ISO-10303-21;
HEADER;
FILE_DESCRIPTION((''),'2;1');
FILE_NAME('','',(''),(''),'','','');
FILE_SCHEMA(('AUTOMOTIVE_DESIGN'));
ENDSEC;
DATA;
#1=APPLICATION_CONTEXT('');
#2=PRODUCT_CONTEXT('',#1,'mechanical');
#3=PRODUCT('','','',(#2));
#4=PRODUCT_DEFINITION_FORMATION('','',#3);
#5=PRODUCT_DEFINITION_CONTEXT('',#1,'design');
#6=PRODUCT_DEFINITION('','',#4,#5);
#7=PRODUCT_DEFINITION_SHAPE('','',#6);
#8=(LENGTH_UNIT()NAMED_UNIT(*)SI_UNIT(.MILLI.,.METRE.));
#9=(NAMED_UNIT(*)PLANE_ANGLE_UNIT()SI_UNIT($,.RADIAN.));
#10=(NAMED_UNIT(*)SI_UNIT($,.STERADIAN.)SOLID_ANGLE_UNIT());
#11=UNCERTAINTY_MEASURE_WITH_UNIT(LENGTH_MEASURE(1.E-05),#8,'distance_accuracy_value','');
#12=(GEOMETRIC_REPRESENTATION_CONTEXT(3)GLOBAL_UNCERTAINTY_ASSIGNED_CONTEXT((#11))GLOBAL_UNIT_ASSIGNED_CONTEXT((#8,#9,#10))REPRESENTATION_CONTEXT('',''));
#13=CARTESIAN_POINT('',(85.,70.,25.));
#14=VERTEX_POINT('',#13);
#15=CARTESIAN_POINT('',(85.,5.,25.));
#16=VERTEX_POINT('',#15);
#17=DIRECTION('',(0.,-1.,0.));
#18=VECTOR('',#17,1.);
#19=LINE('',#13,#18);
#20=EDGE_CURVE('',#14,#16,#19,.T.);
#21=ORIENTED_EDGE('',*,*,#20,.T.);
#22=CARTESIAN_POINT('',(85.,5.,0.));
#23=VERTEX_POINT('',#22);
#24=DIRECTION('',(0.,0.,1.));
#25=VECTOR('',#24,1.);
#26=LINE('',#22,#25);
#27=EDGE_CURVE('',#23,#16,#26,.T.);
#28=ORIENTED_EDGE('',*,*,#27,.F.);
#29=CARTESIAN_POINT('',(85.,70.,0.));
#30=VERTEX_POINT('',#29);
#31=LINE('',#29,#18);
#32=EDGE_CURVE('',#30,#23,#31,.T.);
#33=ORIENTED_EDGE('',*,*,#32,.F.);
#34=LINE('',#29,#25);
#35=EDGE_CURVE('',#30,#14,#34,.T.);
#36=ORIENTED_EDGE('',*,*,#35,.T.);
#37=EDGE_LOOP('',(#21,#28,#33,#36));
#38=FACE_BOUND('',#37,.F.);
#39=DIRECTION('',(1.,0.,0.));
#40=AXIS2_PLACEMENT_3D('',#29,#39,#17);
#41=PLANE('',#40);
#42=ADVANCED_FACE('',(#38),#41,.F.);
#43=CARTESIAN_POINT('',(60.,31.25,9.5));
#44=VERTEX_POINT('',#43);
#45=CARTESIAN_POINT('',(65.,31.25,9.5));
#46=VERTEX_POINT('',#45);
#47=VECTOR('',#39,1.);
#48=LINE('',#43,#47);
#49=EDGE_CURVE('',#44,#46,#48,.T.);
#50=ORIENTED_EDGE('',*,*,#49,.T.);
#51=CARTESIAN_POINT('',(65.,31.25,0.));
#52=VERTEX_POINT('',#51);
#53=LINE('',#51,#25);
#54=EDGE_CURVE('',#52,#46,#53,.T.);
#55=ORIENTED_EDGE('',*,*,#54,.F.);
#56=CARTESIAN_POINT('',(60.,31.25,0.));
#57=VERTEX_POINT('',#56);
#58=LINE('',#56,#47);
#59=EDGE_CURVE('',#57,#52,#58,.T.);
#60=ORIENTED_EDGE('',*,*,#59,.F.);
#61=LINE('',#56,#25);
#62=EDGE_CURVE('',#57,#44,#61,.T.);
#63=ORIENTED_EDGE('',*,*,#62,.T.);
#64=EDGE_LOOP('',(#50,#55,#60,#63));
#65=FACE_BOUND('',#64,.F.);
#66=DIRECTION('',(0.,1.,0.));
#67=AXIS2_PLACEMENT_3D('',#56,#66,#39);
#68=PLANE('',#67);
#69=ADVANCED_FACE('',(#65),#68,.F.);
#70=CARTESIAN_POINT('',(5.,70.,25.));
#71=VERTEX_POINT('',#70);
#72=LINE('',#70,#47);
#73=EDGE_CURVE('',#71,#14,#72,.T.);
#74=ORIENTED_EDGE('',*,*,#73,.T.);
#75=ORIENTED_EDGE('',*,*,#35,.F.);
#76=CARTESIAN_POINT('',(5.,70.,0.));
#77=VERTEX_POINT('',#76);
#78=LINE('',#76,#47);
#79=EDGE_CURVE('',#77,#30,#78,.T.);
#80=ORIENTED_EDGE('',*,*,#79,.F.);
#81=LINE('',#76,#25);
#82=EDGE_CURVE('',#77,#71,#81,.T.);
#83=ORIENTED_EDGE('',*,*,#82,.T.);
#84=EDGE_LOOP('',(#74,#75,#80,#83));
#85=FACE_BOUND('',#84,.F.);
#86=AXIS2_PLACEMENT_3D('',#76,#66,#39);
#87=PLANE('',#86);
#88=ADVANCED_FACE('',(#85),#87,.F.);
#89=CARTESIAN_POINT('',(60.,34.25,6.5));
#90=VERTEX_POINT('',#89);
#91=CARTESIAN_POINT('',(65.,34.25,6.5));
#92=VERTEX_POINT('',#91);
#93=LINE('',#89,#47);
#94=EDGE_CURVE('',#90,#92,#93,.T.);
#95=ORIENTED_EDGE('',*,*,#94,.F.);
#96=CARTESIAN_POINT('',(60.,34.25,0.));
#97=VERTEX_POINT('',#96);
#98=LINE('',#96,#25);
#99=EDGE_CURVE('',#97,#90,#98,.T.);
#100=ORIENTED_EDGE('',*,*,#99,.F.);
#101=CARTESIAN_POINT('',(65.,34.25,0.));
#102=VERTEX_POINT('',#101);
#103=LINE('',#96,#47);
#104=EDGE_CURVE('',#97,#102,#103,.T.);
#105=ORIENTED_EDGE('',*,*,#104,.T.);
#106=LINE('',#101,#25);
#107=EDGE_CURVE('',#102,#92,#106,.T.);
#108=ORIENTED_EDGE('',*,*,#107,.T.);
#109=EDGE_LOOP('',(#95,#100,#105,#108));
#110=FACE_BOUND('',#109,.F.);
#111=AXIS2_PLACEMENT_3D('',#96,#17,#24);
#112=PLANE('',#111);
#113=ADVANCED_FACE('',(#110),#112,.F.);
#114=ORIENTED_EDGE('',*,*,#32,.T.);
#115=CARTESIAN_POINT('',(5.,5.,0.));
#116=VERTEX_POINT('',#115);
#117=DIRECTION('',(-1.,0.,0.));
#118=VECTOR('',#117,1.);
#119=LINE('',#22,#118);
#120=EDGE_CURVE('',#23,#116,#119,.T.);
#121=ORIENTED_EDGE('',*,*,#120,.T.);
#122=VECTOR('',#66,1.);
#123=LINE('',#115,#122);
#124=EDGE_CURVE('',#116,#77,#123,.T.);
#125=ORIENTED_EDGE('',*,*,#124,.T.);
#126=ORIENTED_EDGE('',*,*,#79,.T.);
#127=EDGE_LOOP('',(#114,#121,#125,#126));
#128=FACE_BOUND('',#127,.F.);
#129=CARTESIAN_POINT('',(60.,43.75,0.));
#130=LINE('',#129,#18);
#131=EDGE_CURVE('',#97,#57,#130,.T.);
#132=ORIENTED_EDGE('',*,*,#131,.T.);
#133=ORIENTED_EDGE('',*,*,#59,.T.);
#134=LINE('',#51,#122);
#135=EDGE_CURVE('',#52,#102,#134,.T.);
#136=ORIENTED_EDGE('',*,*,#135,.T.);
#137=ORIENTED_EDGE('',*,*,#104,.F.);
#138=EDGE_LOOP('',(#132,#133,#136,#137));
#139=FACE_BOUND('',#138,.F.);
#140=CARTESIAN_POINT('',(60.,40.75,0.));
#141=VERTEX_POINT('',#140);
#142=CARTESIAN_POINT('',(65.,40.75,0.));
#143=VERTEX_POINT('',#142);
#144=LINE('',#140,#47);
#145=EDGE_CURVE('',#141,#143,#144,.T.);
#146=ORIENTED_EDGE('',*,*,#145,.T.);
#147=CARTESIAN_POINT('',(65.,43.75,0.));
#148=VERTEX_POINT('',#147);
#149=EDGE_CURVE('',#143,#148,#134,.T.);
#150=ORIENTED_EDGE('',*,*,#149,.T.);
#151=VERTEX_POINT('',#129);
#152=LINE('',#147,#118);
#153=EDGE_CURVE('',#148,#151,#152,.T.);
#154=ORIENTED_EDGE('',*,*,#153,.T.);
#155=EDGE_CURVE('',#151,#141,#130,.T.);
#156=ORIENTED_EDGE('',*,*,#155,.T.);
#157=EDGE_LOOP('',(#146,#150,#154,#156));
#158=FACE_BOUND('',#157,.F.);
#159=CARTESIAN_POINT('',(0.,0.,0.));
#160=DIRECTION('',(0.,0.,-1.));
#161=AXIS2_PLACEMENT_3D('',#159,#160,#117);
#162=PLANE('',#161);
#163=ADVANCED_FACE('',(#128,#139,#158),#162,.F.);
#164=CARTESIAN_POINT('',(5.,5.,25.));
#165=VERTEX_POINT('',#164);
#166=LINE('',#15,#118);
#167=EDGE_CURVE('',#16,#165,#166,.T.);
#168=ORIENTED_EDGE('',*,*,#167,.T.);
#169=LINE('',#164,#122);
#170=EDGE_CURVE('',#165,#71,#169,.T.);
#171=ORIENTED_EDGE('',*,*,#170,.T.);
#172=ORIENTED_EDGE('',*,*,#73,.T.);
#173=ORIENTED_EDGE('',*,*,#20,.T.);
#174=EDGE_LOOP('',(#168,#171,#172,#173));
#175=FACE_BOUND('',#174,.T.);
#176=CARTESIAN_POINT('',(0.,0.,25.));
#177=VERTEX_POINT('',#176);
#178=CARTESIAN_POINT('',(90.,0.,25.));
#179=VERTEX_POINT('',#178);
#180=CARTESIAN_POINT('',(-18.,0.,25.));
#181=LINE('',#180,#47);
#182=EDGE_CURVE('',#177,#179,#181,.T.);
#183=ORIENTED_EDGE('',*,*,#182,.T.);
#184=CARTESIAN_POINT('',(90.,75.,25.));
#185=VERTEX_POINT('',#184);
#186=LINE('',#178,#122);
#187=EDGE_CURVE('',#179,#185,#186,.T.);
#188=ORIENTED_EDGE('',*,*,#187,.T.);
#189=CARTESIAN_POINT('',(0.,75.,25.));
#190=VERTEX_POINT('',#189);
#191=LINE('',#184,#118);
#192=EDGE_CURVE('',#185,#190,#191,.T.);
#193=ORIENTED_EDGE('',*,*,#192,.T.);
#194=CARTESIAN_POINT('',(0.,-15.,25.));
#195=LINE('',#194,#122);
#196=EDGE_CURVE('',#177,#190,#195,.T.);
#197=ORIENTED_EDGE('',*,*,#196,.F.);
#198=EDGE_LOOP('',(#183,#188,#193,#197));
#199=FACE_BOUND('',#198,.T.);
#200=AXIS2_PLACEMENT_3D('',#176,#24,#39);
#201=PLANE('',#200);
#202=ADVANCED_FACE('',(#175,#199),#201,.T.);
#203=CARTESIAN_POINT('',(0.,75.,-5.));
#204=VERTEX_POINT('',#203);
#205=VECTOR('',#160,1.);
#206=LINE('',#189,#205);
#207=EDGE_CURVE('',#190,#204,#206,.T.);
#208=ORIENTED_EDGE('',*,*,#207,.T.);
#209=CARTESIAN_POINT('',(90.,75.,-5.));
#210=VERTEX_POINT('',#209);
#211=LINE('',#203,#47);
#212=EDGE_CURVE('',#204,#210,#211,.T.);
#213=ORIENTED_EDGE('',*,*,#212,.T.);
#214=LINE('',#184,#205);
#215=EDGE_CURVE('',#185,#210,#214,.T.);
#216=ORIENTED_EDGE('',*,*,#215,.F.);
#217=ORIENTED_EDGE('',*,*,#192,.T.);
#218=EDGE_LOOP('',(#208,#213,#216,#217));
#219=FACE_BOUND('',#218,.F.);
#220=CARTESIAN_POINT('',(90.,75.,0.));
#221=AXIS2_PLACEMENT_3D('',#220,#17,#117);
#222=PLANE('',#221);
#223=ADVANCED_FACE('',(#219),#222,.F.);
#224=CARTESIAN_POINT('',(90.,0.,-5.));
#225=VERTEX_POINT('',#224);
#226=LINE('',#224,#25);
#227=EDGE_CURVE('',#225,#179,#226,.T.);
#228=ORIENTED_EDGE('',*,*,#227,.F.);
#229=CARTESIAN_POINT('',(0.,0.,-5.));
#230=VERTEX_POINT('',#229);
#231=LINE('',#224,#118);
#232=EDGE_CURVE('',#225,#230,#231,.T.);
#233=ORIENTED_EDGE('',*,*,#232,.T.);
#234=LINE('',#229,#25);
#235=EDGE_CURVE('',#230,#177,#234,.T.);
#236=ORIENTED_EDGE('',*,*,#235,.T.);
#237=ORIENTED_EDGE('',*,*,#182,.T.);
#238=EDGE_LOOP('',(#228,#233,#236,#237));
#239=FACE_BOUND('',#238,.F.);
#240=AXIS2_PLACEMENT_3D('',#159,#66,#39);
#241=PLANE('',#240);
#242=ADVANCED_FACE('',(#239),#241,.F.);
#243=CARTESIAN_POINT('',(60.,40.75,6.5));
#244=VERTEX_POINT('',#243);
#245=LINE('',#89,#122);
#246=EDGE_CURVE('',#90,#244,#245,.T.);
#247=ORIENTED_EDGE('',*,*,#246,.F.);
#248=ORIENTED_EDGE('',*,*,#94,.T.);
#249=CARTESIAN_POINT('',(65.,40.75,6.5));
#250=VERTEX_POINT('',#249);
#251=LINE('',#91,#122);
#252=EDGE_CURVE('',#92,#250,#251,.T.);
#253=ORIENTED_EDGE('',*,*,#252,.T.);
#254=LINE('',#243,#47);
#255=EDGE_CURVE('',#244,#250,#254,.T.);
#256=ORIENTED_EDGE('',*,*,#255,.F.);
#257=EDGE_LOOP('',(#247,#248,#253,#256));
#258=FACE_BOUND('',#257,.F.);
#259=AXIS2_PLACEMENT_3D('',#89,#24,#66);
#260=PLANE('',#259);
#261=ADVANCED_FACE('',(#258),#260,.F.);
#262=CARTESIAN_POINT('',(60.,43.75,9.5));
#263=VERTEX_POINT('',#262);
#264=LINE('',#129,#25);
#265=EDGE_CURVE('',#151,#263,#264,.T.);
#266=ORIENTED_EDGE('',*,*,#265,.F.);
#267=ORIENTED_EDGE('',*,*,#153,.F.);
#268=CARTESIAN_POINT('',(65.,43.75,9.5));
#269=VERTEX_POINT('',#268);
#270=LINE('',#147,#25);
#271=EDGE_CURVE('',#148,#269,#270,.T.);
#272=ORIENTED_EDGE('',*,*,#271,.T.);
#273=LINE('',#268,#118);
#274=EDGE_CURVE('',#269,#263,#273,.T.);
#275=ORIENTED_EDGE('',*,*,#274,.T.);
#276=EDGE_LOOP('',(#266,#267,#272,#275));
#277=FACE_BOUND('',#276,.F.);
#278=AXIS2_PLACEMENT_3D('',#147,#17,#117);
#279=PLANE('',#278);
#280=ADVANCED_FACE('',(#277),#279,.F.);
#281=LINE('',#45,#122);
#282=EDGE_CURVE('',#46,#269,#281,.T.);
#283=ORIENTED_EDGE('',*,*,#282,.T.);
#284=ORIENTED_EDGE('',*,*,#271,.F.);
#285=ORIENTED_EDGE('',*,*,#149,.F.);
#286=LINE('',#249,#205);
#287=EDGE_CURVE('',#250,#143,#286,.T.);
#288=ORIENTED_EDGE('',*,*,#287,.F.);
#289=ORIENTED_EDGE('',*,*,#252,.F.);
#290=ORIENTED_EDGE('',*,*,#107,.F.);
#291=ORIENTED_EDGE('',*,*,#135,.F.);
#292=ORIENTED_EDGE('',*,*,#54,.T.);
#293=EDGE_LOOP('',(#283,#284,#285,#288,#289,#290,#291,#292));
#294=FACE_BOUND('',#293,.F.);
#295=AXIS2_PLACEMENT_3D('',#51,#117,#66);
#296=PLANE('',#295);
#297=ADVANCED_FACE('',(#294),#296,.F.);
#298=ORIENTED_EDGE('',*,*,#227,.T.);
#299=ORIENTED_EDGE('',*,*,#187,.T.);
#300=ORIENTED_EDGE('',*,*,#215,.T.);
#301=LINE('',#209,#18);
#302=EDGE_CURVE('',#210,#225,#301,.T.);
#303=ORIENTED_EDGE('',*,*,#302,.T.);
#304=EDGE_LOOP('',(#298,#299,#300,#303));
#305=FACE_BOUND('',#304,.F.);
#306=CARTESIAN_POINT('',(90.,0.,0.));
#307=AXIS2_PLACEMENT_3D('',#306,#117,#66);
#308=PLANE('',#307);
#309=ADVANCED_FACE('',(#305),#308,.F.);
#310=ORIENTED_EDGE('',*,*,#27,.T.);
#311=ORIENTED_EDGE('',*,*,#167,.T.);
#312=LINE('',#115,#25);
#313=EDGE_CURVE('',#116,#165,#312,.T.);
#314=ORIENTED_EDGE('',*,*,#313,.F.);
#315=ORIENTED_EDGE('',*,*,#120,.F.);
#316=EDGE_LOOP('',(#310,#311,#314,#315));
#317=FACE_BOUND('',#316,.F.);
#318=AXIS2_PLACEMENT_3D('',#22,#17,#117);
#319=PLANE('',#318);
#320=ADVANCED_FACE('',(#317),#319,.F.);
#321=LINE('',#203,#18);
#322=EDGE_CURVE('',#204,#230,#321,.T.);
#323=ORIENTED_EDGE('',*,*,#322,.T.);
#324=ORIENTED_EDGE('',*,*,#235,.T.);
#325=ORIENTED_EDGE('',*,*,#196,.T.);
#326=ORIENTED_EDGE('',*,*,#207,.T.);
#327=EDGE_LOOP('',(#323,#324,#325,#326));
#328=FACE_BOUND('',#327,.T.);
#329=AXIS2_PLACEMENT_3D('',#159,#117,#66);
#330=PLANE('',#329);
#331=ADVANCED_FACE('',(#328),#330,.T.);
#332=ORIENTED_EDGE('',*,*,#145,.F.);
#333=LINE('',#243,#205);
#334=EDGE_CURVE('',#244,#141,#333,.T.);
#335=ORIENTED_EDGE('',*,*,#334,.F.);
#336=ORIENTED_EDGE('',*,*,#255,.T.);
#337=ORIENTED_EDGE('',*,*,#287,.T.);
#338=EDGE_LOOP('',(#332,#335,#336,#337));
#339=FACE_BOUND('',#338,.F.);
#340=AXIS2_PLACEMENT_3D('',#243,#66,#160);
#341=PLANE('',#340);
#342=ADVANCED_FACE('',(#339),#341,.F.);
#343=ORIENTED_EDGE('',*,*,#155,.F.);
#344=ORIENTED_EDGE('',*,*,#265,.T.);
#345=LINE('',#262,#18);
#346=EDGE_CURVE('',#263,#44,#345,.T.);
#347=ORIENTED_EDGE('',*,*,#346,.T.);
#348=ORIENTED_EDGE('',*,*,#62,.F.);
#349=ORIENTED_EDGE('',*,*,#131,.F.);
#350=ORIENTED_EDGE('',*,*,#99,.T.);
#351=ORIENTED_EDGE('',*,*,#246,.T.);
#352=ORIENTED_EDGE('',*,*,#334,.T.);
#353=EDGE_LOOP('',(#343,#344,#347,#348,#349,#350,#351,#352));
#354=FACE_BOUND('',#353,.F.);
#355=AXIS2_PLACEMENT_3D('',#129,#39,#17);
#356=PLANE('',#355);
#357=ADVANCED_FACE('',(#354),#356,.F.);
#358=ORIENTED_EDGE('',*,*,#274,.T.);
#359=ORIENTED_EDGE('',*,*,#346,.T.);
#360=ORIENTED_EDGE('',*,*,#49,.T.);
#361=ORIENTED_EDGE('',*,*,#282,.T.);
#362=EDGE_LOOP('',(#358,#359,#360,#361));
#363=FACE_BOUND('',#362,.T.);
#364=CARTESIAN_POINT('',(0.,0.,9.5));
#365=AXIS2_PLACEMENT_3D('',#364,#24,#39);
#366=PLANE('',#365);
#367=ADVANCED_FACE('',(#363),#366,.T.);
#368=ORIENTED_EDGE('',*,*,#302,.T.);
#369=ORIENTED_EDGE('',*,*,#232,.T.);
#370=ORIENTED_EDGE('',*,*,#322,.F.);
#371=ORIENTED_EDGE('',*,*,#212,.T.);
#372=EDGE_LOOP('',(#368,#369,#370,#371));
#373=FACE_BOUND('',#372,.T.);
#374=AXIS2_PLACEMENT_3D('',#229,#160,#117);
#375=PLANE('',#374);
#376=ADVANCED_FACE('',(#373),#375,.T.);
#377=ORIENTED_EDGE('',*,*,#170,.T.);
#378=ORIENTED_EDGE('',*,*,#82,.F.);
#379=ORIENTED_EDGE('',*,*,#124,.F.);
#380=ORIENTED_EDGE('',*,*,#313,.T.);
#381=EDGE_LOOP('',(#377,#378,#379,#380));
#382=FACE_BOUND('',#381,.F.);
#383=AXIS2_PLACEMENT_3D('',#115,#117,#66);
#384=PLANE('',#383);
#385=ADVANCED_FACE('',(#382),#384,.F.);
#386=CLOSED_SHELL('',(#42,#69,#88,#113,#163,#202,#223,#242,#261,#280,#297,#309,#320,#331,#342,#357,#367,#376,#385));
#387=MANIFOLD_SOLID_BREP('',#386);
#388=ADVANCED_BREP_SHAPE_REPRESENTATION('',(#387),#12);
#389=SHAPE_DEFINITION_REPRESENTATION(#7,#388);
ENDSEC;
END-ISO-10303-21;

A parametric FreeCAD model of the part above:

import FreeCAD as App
import Part
import Sketcher

V = App.Vector
Q = App.Units.Quantity


def add_polygon(sketch, points):
    """Adds a closed chain of lines whose ends are joined by coincident constraints."""
    first, n = sketch.GeometryCount, len(points)
    for a, b in zip(points, points[1:] + points[:1]):
        sketch.addGeometry(Part.LineSegment(App.Vector(*a, 0), App.Vector(*b, 0)), False)
    for i in range(n):
        sketch.addConstraint(Sketcher.Constraint("Coincident", first + i, 2, first + (i + 1) % n, 1))

doc = App.newDocument("Part")
body = doc.addObject("PartDesign::Body", "Body")

sketch1 = body.newObject("Sketcher::SketchObject", "Sketch")
sketch1.AttachmentSupport = (doc.getObject("XY_Plane"), [""])
sketch1.MapMode = "FlatFace"
add_polygon(sketch1, [(0, 75), (0, 0), (90, 0), (90, 75)])
add_polygon(sketch1, [(5, 5), (5, 70), (85, 70), (85, 5)])
sketch1.addConstraint([
    Sketcher.Constraint("Vertical", 0),
    Sketcher.Constraint("Horizontal", 1),
    Sketcher.Constraint("Vertical", 2),
    Sketcher.Constraint("Horizontal", 3),
    Sketcher.Constraint("Vertical", 4),
    Sketcher.Constraint("Horizontal", 5),
    Sketcher.Constraint("Vertical", 6),
    Sketcher.Constraint("Horizontal", 7),
    Sketcher.Constraint("Coincident", 0, 2, -1, 1),
    Sketcher.Constraint("DistanceX", 1, 1, 1, 2, Q("90 mm")),
    Sketcher.Constraint("DistanceY", 0, 2, 0, 1, Q("75 mm")),
    Sketcher.Constraint("DistanceX", -1, 1, 4, 2, Q("5 mm")),
    Sketcher.Constraint("DistanceY", -1, 1, 6, 2, Q("5 mm")),
    Sketcher.Constraint("DistanceY", 4, 2, 3, 2, Q("5 mm")),
    Sketcher.Constraint("DistanceX", 5, 2, 2, 2, Q("5 mm")),
])
pad1 = body.newObject("PartDesign::Pad", "Pad")
pad1.Profile = sketch1
pad1.Length = 25

sketch2 = body.newObject("Sketcher::SketchObject", "Sketch001")
sketch2.AttachmentSupport = (doc.getObject("XY_Plane"), [""])
sketch2.MapMode = "FlatFace"
add_polygon(sketch2, [(0, 0), (0, 75), (90, 75), (90, 0)])
sketch2.addConstraint([
    Sketcher.Constraint("Vertical", 0),
    Sketcher.Constraint("Horizontal", 1),
    Sketcher.Constraint("Vertical", 2),
    Sketcher.Constraint("Horizontal", 3),
    Sketcher.Constraint("Coincident", 3, 2, -1, 1),
    Sketcher.Constraint("DistanceX", 1, 1, 1, 2, Q("90 mm")),
    Sketcher.Constraint("DistanceY", 0, 1, 0, 2, Q("75 mm")),
])
pad2 = body.newObject("PartDesign::Pad", "Pad001")
pad2.Profile = sketch2
pad2.Length = 5
pad2.Reversed = True

sketch3 = body.newObject("Sketcher::SketchObject", "Sketch002")
sketch3.AttachmentSupport = (doc.getObject("XY_Plane"), [""])
sketch3.MapMode = "FlatFace"
add_polygon(sketch3, [(60, 43.75), (60, 31.25), (65, 31.25), (65, 43.75)])
sketch3.addConstraint([
    Sketcher.Constraint("Vertical", 0),
    Sketcher.Constraint("Horizontal", 1),
    Sketcher.Constraint("Vertical", 2),
    Sketcher.Constraint("Horizontal", 3),
    Sketcher.Constraint("DistanceX", 1, 1, 1, 2, Q("5 mm")),
    Sketcher.Constraint("DistanceY", 0, 2, 0, 1, Q("12.5 mm")),
    Sketcher.Constraint("DistanceX", -1, 1, 0, 2, Q("60 mm")),
    Sketcher.Constraint("DistanceY", -1, 1, 0, 2, Q("31.25 mm")),
])
pad3 = body.newObject("PartDesign::Pad", "Pad002")
pad3.Profile = sketch3
pad3.Length = 9.5

sketch4 = body.newObject("Sketcher::SketchObject", "Sketch003")
sketch4.AttachmentSupport = (doc.getObject("YZ_Plane"), [""])
sketch4.MapMode = "FlatFace"
sketch4.AttachmentOffset = App.Placement(V(0, 0, 60), App.Rotation())
add_polygon(sketch4, [(40.75, 6.5), (40.75, 0), (34.25, 0), (34.25, 6.5)])
sketch4.addConstraint([
    Sketcher.Constraint("Vertical", 0),
    Sketcher.Constraint("Horizontal", 1),
    Sketcher.Constraint("Vertical", 2),
    Sketcher.Constraint("Horizontal", 3),
    Sketcher.Constraint("PointOnObject", 0, 2, -1),
    Sketcher.Constraint("Equal", 3, 0),
    Sketcher.Constraint("DistanceX", 1, 2, 1, 1, Q("6.5 mm")),
    Sketcher.Constraint("DistanceX", -1, 1, 0, 2, Q("40.75 mm")),
])
pocket1 = body.newObject("PartDesign::Pocket", "Pocket")
pocket1.Profile = sketch4
pocket1.Length = 5
pocket1.Reversed = True

doc.recompute()
